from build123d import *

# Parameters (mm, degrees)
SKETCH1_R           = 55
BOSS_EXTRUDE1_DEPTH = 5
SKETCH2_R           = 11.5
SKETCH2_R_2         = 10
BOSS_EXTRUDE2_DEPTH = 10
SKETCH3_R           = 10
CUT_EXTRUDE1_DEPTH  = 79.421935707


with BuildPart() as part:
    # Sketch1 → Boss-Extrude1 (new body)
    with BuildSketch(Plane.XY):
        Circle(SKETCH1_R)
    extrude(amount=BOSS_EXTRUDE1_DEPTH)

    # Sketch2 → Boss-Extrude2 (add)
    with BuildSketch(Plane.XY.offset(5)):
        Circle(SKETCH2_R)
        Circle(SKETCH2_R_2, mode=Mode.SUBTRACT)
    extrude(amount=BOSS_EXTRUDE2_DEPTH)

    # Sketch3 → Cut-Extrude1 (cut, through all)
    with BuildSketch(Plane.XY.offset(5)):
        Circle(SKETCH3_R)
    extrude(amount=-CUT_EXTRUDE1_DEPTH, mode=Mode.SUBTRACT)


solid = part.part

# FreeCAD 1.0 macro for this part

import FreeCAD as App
import Part
import Sketcher

V = App.Vector

doc = App.newDocument("Part")
body = doc.addObject("PartDesign::Body", "Body")

sketch1 = body.newObject("Sketcher::SketchObject", "Sketch")
sketch1.AttachmentSupport = (doc.getObject("XY_Plane"), [""])
sketch1.MapMode = "FlatFace"
sketch1.addGeometry(Part.Circle(V(0, 0, 0), V(0, 0, 1), 55), False)
sketch1.addConstraint(Sketcher.Constraint("Coincident", 0, 3, -1, 1))
sketch1.addConstraint(Sketcher.Constraint("Diameter", 0, 110.0))
pad1 = body.newObject("PartDesign::Pad", "Pad")
pad1.Profile = sketch1
pad1.Length = 5

sketch2 = body.newObject("Sketcher::SketchObject", "Sketch001")
sketch2.AttachmentSupport = (doc.getObject("XY_Plane"), [""])
sketch2.MapMode = "FlatFace"
sketch2.AttachmentOffset = App.Placement(V(0, 0, 5), App.Rotation())
sketch2.addGeometry(Part.Circle(V(0, 0, 0), V(0, 0, 1), 11.5), False)
sketch2.addGeometry(Part.Circle(V(0, 0, 0), V(0, 0, 1), 10), False)
sketch2.addConstraint(Sketcher.Constraint("Coincident", 0, 3, -1, 1))
sketch2.addConstraint(Sketcher.Constraint("Coincident", 1, 3, -1, 1))
sketch2.addConstraint(Sketcher.Constraint("Diameter", 0, 23.0))
sketch2.addConstraint(Sketcher.Constraint("Diameter", 1, 20.0))
pad2 = body.newObject("PartDesign::Pad", "Pad001")
pad2.Profile = sketch2
pad2.Length = 10

sketch3 = body.newObject("Sketcher::SketchObject", "Sketch002")
sketch3.AttachmentSupport = (doc.getObject("XY_Plane"), [""])
sketch3.MapMode = "FlatFace"
sketch3.AttachmentOffset = App.Placement(V(0, 0, 5), App.Rotation())
sketch3.addGeometry(Part.Circle(V(0, 0, 0), V(0, 0, 1), 10), False)
sketch3.addConstraint(Sketcher.Constraint("Coincident", 0, 3, -1, 1))
sketch3.addConstraint(Sketcher.Constraint("Diameter", 0, 20.0))
pocket1 = body.newObject("PartDesign::Pocket", "Pocket")
pocket1.Profile = sketch3
pocket1.Type = "ThroughAll"

doc.recompute()
